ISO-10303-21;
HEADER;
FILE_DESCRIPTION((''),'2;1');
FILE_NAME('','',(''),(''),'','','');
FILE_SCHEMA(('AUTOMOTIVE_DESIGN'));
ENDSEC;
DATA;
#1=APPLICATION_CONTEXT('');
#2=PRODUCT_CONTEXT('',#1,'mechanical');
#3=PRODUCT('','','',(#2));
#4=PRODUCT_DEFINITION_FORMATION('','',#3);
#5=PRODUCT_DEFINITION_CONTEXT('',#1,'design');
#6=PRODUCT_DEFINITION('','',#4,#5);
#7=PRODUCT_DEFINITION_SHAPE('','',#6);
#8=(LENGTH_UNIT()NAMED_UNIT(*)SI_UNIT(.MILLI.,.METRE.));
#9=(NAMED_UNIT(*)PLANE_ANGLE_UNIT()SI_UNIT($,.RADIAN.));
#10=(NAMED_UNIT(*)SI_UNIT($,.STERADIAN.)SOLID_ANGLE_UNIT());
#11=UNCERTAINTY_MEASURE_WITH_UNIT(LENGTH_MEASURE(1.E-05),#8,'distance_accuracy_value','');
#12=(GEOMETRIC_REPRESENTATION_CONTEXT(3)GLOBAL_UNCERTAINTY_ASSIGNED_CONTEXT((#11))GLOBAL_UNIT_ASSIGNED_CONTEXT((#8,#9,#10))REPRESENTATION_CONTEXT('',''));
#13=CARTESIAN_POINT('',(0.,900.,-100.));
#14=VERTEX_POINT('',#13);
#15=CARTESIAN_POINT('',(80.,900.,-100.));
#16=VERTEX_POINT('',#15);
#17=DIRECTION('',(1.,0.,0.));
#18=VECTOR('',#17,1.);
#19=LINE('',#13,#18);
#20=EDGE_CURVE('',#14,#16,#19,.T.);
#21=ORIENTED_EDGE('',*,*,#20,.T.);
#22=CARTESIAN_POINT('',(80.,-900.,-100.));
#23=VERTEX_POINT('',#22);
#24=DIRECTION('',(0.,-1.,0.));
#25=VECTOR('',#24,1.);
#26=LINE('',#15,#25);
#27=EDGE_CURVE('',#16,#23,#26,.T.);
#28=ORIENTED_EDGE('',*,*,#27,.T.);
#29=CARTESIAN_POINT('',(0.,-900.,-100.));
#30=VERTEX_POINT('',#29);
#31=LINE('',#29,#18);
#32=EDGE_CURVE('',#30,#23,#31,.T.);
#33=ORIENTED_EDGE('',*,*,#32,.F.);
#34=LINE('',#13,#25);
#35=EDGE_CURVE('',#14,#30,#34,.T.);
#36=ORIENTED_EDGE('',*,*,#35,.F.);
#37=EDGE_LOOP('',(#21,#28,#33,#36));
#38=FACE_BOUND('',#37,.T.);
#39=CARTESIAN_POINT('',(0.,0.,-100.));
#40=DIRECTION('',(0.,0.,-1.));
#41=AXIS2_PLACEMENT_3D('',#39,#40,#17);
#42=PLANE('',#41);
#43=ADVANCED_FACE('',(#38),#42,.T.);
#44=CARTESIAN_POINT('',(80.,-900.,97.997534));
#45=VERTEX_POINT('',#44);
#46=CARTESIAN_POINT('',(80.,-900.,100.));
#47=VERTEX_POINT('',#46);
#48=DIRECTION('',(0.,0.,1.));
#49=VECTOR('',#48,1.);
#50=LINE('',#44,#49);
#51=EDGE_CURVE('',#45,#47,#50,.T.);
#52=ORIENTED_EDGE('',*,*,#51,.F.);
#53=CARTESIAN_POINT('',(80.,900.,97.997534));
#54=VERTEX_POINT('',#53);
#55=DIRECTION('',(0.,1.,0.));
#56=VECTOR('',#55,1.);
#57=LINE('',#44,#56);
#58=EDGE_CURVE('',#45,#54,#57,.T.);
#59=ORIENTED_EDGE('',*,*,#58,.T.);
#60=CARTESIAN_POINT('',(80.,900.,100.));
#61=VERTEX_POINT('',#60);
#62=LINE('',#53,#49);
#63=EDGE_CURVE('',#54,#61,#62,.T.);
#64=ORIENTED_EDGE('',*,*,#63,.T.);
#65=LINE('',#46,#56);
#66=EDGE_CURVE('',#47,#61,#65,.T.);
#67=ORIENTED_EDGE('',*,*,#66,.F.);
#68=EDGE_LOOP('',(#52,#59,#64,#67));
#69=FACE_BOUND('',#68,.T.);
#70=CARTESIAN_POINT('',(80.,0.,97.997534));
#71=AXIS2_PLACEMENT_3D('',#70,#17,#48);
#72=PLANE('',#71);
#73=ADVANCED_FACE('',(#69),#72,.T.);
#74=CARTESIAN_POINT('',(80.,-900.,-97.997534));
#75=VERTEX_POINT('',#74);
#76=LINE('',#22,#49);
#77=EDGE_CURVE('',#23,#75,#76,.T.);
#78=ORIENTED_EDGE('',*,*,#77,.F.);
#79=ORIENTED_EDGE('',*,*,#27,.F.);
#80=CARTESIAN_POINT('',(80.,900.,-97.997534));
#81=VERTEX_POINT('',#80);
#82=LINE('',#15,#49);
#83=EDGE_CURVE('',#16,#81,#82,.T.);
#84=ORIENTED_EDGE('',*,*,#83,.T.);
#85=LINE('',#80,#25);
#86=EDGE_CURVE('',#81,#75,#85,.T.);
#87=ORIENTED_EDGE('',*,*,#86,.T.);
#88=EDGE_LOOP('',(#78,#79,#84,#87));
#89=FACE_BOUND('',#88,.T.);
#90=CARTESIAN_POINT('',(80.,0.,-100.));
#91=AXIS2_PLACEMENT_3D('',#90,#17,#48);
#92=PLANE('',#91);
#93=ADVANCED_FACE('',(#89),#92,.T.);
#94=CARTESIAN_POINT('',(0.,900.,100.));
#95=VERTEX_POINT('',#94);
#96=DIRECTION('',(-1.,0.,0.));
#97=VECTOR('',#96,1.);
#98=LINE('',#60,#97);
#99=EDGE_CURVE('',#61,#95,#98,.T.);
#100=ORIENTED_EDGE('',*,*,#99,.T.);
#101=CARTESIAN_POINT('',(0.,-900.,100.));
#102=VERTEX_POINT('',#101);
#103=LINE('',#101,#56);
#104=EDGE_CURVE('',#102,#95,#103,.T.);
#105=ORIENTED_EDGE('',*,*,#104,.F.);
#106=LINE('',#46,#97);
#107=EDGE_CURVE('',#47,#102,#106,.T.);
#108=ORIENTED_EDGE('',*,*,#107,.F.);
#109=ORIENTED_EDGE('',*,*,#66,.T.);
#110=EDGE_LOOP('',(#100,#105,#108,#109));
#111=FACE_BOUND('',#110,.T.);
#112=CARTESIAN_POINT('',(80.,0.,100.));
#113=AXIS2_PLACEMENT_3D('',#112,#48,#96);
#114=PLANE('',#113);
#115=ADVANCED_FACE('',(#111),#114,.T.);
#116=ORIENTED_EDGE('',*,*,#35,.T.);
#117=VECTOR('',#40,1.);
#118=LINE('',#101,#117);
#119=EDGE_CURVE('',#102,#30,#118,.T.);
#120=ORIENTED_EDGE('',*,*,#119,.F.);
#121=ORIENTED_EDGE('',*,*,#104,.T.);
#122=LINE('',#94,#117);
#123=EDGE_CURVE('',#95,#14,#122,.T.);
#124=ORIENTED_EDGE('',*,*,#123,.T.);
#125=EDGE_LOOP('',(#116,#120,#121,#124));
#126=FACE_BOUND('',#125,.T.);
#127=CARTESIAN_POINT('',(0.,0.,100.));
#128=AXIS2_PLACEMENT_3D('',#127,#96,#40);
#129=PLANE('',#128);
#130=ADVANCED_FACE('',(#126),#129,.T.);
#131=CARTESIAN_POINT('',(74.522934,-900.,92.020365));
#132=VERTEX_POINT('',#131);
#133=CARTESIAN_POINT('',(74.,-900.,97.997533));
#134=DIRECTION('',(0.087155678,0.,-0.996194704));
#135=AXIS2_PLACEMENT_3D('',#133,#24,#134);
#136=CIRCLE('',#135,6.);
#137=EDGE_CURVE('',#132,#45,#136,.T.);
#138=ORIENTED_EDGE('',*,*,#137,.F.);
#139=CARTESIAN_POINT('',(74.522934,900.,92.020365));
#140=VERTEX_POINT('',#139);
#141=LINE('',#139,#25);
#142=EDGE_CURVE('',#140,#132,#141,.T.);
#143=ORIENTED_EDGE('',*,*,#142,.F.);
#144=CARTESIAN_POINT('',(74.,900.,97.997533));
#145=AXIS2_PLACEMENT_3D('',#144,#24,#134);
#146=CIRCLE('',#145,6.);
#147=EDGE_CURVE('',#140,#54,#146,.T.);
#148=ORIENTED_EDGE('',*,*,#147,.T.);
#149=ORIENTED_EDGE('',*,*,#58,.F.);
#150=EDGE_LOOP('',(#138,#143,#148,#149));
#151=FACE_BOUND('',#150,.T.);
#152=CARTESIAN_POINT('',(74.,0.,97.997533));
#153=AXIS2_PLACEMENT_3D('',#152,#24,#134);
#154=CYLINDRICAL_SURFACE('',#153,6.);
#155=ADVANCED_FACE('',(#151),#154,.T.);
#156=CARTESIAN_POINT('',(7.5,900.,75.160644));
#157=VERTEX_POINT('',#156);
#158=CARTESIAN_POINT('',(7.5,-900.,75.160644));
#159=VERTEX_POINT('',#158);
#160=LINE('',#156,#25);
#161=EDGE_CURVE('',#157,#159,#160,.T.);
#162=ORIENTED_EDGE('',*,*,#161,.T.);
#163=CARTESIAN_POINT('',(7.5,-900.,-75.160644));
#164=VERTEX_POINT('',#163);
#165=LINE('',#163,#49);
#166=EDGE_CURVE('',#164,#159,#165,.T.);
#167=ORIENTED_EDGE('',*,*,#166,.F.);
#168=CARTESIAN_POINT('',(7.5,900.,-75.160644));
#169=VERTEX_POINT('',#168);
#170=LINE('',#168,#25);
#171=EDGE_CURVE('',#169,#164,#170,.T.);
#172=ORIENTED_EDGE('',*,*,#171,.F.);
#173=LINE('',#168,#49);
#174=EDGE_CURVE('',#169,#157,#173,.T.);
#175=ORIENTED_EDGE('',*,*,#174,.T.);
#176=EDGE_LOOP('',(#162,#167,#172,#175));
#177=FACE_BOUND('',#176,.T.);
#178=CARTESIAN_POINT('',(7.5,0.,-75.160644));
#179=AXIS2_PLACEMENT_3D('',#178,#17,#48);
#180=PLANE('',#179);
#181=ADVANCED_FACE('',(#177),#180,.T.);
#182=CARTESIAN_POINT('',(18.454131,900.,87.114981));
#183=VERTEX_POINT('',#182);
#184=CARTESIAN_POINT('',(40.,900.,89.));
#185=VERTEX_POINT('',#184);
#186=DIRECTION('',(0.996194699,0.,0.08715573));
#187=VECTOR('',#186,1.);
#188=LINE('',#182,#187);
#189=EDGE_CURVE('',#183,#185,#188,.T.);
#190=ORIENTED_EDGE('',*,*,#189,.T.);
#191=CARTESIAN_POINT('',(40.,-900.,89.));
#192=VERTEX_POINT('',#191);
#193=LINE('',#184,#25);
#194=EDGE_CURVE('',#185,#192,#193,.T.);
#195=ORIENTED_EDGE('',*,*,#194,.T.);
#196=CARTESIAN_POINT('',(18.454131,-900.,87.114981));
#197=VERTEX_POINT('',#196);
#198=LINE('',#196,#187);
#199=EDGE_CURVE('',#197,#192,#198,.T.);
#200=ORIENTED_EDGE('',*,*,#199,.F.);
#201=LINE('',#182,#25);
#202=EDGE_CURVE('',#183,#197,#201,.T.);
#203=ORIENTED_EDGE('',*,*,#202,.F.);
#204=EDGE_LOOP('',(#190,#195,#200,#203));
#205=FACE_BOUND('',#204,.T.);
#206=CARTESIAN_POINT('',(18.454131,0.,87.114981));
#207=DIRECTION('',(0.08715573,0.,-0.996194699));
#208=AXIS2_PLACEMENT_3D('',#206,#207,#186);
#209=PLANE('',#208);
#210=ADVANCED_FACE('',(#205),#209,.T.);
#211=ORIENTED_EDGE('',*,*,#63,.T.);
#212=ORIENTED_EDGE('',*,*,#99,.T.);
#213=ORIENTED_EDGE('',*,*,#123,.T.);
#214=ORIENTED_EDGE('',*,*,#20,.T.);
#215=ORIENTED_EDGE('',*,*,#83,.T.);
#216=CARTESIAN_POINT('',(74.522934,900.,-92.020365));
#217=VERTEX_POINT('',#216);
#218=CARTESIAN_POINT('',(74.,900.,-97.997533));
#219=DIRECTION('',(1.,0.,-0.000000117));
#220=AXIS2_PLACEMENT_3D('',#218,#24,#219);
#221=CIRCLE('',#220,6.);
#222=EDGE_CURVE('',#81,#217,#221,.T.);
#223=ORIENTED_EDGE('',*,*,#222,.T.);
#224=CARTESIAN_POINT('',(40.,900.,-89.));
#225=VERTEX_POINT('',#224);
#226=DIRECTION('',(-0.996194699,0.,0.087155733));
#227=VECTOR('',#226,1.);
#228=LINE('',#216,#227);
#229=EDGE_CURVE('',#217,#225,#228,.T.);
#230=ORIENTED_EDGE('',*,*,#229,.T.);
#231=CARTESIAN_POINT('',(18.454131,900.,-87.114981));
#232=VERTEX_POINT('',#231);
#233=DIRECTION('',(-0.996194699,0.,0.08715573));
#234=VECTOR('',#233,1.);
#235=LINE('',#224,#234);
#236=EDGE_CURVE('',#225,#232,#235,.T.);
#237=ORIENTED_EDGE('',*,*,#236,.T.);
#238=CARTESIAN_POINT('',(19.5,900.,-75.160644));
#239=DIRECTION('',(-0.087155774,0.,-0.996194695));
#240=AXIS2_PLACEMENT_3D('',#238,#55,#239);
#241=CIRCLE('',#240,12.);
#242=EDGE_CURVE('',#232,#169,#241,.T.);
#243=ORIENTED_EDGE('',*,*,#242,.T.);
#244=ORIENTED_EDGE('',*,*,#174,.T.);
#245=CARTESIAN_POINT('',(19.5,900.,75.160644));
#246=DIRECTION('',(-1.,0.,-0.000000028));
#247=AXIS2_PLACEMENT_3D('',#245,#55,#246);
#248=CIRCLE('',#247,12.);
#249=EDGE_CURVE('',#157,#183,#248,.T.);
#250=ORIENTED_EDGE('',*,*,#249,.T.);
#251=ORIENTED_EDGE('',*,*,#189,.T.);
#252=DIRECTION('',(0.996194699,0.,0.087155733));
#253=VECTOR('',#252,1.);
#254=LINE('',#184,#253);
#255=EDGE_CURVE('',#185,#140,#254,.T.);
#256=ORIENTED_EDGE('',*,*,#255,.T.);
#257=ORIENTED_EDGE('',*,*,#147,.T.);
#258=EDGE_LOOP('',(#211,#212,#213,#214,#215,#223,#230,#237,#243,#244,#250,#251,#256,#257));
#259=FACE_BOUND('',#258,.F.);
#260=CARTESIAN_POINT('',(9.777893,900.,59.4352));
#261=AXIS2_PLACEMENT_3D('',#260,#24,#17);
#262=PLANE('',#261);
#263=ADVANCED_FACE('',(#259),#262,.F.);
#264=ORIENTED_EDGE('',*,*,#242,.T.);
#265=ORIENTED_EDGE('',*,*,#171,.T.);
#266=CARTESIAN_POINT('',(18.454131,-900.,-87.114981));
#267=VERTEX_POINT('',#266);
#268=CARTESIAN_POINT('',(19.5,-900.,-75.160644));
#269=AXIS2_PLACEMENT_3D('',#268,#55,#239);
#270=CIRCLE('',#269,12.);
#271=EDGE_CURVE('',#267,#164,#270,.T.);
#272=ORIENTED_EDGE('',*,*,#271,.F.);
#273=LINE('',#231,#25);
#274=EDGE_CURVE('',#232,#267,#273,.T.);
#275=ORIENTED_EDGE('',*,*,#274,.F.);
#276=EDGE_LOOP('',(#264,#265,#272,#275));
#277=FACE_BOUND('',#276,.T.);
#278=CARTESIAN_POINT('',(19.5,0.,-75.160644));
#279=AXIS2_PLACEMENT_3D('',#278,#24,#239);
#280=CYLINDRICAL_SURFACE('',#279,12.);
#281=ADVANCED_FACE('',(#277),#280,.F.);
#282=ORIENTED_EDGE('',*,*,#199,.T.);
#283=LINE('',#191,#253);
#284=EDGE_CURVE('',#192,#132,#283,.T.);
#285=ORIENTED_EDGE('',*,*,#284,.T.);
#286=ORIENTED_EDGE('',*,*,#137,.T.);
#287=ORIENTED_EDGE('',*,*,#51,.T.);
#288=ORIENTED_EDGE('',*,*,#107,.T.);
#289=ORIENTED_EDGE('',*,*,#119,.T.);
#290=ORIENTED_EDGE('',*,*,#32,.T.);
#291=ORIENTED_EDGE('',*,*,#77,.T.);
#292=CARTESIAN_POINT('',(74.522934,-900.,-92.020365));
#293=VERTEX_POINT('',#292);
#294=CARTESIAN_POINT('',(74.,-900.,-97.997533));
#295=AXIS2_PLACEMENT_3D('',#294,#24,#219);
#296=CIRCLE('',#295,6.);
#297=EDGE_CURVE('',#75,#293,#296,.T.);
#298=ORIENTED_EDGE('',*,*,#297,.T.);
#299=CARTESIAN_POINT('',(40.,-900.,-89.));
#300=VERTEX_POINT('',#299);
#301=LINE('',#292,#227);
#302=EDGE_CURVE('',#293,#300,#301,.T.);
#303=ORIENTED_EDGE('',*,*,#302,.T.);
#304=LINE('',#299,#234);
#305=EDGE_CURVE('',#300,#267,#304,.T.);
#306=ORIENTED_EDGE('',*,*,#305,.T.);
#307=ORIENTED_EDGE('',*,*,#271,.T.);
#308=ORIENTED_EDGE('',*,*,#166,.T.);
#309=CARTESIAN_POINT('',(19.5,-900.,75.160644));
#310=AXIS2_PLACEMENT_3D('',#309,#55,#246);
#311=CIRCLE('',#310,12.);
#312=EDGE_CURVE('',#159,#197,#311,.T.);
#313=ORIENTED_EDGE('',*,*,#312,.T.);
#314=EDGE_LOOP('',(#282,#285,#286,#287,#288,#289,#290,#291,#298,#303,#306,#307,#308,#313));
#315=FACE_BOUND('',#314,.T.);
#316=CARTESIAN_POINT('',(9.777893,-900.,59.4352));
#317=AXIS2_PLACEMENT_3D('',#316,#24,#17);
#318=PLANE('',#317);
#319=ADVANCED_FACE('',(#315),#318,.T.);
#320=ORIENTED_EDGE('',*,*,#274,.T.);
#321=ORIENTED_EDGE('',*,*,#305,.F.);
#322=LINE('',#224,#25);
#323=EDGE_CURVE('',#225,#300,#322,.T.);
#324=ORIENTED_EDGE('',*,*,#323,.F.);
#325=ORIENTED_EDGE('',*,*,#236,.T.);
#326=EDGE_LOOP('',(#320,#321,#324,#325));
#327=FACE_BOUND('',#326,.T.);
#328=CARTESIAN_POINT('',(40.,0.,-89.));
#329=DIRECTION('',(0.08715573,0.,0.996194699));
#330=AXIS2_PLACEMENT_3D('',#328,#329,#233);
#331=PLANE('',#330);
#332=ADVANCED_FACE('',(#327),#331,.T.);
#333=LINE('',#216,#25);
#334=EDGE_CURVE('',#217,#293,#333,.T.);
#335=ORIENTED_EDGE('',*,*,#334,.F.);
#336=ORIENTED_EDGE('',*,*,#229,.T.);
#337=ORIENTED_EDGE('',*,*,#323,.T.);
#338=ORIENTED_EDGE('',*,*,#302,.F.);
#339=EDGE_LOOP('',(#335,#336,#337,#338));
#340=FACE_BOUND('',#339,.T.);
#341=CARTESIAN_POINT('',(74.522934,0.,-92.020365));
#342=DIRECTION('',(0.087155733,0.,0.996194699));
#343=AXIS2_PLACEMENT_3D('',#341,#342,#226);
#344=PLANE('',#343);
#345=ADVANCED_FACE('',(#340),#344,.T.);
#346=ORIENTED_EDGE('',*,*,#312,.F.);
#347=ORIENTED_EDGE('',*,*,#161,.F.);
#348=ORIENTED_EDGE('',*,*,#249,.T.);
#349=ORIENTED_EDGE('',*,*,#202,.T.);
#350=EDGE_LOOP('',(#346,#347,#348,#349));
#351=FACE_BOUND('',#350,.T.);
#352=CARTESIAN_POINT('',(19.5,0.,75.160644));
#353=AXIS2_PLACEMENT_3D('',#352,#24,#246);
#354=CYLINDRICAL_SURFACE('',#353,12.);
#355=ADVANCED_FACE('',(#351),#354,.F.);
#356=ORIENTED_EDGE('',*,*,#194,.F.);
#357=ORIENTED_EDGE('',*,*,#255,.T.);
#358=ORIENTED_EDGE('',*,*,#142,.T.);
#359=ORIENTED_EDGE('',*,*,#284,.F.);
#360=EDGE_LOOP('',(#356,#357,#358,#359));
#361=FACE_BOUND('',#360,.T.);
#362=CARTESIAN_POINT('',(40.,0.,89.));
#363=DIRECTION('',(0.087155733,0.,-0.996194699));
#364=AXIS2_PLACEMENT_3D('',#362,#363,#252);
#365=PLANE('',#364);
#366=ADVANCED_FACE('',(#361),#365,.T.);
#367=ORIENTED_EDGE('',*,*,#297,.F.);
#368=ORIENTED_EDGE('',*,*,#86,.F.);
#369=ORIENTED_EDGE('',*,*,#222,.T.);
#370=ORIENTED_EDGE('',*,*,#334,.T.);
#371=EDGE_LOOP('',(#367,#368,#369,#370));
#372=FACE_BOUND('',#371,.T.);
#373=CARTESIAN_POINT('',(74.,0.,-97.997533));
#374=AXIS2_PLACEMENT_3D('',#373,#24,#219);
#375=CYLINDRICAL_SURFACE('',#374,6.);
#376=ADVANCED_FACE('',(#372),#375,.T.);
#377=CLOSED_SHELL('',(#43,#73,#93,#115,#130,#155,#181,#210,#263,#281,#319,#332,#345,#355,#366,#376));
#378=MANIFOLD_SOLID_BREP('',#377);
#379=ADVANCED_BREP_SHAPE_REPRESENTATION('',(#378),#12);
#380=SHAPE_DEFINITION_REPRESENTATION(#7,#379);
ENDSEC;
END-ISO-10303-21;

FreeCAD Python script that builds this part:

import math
import FreeCAD as App
import Part
import Sketcher

V = App.Vector
Q = App.Units.Quantity

doc = App.newDocument("Part")
body = doc.addObject("PartDesign::Body", "Body")

sketch1 = body.newObject("Sketcher::SketchObject", "Sketch")
sketch1.AttachmentSupport = (doc.getObject("XZ_Plane"), [""])
sketch1.MapMode = "FlatFace"
sketch1.addGeometry([
    Part.LineSegment(V(0, 100, 0), V(0, -100, 0)),
    Part.LineSegment(V(0, -100, 0), V(80, -100, 0)),
    Part.LineSegment(V(80, -100, 0), V(80, -98, 0)),
    Part.ArcOfCircle(Part.Circle(V(74, -98, 0), V(0, 0, 1), 6), math.radians(0), math.radians(85)),
    Part.LineSegment(V(74.5, -92, 0), V(40, -89, 0)),
    Part.LineSegment(V(40, -89, 0), V(18.5, -87.1, 0)),
    Part.ArcOfCircle(Part.Circle(V(19.5, -75.2, 0), V(0, 0, 1), 12), math.radians(180), math.radians(265)),
    Part.LineSegment(V(7.5, -75.2, 0), V(7.5, 75.2, 0)),
    Part.ArcOfCircle(Part.Circle(V(19.5, 75.2, 0), V(0, 0, 1), 12), math.radians(95), math.radians(180)),
    Part.LineSegment(V(18.5, 87.1, 0), V(40, 89, 0)),
    Part.LineSegment(V(40, 89, 0), V(74.5, 92, 0)),
    Part.ArcOfCircle(Part.Circle(V(74, 98, 0), V(0, 0, 1), 6), math.radians(-85), math.radians(0)),
    Part.LineSegment(V(80, 98, 0), V(80, 100, 0)),
    Part.LineSegment(V(80, 100, 0), V(0, 100, 0)),
], False)
sketch1.addConstraint([
    Sketcher.Constraint("Coincident", 0, 2, 1, 1),
    Sketcher.Constraint("Coincident", 1, 2, 2, 1),
    Sketcher.Constraint("Tangent", 2, 2, 3, 1),
    Sketcher.Constraint("Tangent", 3, 2, 4, 1),
    Sketcher.Constraint("Coincident", 4, 2, 5, 1),
    Sketcher.Constraint("Tangent", 5, 2, 6, 2),
    Sketcher.Constraint("Tangent", 6, 1, 7, 1),
    Sketcher.Constraint("Tangent", 7, 2, 8, 2),
    Sketcher.Constraint("Tangent", 8, 1, 9, 1),
    Sketcher.Constraint("Coincident", 9, 2, 10, 1),
    Sketcher.Constraint("Tangent", 10, 2, 11, 1),
    Sketcher.Constraint("Tangent", 11, 2, 12, 1),
    Sketcher.Constraint("Coincident", 12, 2, 13, 1),
    Sketcher.Constraint("Coincident", 13, 2, 0, 1),
    Sketcher.Constraint("Vertical", 0),
    Sketcher.Constraint("Horizontal", 1),
    Sketcher.Constraint("Vertical", 2),
    Sketcher.Constraint("Vertical", 7),
    Sketcher.Constraint("Vertical", 12),
    Sketcher.Constraint("Horizontal", 13),
    Sketcher.Constraint("Equal", 6, 8),
    Sketcher.Constraint("Equal", 3, 11),
    Sketcher.Constraint("Symmetric", 0, 2, 13, 2, -1, 1),
    Sketcher.Constraint("Symmetric", 3, 3, 11, 3, -1),
    Sketcher.Constraint("Symmetric", 5, 2, 8, 1, -1),
    Sketcher.Constraint("Parallel", 4, 5),
    Sketcher.Constraint("Vertical", 4, 2, 9, 2),
    Sketcher.Constraint("Radius", 3, 6.0),
    Sketcher.Constraint("Radius", 6, 12.0),
    Sketcher.Constraint("DistanceX", 1, 1, 1, 2, 80.0),
    Sketcher.Constraint("DistanceY", 0, 2, 0, 1, 200.0),
    Sketcher.Constraint("Angle", 4, Q("175.000001 deg")),
    Sketcher.Constraint("DistanceX", -1, 1, 4, 2, 40.0),
    Sketcher.Constraint("DistanceY", 4, 2, -1, 1, 89.0),
    Sketcher.Constraint("DistanceX", -1, 1, 6, 3, 19.5),
])
pad1 = body.newObject("PartDesign::Pad", "Pad")
pad1.Profile = sketch1
pad1.Length = 1800
pad1.Midplane = True

doc.recompute()
